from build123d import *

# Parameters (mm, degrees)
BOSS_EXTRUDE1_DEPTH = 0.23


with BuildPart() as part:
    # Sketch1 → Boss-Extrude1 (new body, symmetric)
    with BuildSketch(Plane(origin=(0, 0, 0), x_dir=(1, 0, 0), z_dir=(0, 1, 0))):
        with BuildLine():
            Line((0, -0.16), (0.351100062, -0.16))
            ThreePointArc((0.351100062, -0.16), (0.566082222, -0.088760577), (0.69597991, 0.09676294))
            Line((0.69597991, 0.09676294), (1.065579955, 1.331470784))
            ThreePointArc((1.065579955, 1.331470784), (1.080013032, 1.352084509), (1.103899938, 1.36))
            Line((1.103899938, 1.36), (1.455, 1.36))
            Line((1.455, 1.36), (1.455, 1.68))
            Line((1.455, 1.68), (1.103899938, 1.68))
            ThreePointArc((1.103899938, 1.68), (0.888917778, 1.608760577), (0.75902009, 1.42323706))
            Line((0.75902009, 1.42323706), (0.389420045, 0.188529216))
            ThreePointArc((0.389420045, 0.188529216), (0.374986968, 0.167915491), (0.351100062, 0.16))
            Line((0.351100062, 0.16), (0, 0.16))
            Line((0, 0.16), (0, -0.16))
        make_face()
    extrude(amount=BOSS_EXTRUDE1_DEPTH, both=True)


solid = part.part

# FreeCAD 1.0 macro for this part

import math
import FreeCAD as App
import Part
import Sketcher
Q = App.Units.Quantity

doc = App.newDocument("Part")
body = doc.addObject("PartDesign::Body", "Body")

sketch1 = body.newObject("Sketcher::SketchObject", "Sketch")
sketch1.AttachmentSupport = (doc.getObject("XZ_Plane"), [""])
sketch1.MapMode = "FlatFace"
sketch1.addGeometry(Part.LineSegment(App.Vector(0, 0.16, 0), App.Vector(0.351, 0.16, 0)), False)
sketch1.addGeometry(Part.ArcOfCircle(Part.Circle(App.Vector(0.351, -0.2, 0), App.Vector(0, 0, 1), 0.36), math.radians(17), math.radians(90)), False)
sketch1.addGeometry(Part.LineSegment(App.Vector(0.696, -0.097, 0), App.Vector(1.066, -1.331, 0)), False)
sketch1.addGeometry(Part.ArcOfCircle(Part.Circle(App.Vector(1.104, -1.32, 0), App.Vector(0, 0, 1), 0.04), math.radians(-163), math.radians(-90)), False)
sketch1.addGeometry(Part.LineSegment(App.Vector(1.104, -1.36, 0), App.Vector(1.455, -1.36, 0)), False)
sketch1.addGeometry(Part.LineSegment(App.Vector(1.455, -1.36, 0), App.Vector(1.455, -1.68, 0)), False)
sketch1.addGeometry(Part.LineSegment(App.Vector(1.455, -1.68, 0), App.Vector(1.104, -1.68, 0)), False)
sketch1.addGeometry(Part.ArcOfCircle(Part.Circle(App.Vector(1.104, -1.32, 0), App.Vector(0, 0, 1), 0.36), math.radians(-163), math.radians(-90)), False)
sketch1.addGeometry(Part.LineSegment(App.Vector(0.759, -1.423, 0), App.Vector(0.389, -0.189, 0)), False)
sketch1.addGeometry(Part.ArcOfCircle(Part.Circle(App.Vector(0.351, -0.2, 0), App.Vector(0, 0, 1), 0.04), math.radians(17), math.radians(90)), False)
sketch1.addGeometry(Part.LineSegment(App.Vector(0.351, -0.16, 0), App.Vector(0, -0.16, 0)), False)
sketch1.addGeometry(Part.LineSegment(App.Vector(0, -0.16, 0), App.Vector(0, 0.16, 0)), False)
sketch1.addConstraint(Sketcher.Constraint("Tangent", 0, 2, 1, 2))
sketch1.addConstraint(Sketcher.Constraint("Tangent", 1, 1, 2, 1))
sketch1.addConstraint(Sketcher.Constraint("Tangent", 2, 2, 3, 1))
sketch1.addConstraint(Sketcher.Constraint("Tangent", 3, 2, 4, 1))
sketch1.addConstraint(Sketcher.Constraint("Coincident", 4, 2, 5, 1))
sketch1.addConstraint(Sketcher.Constraint("Coincident", 5, 2, 6, 1))
sketch1.addConstraint(Sketcher.Constraint("Tangent", 6, 2, 7, 2))
sketch1.addConstraint(Sketcher.Constraint("Tangent", 7, 1, 8, 1))
sketch1.addConstraint(Sketcher.Constraint("Tangent", 8, 2, 9, 1))
sketch1.addConstraint(Sketcher.Constraint("Tangent", 9, 2, 10, 1))
sketch1.addConstraint(Sketcher.Constraint("Coincident", 10, 2, 11, 1))
sketch1.addConstraint(Sketcher.Constraint("Coincident", 11, 2, 0, 1))
sketch1.addConstraint(Sketcher.Constraint("Horizontal", 0))
sketch1.addConstraint(Sketcher.Constraint("Horizontal", 4))
sketch1.addConstraint(Sketcher.Constraint("Vertical", 5))
sketch1.addConstraint(Sketcher.Constraint("Horizontal", 6))
sketch1.addConstraint(Sketcher.Constraint("Horizontal", 10))
sketch1.addConstraint(Sketcher.Constraint("Vertical", 11))
sketch1.addConstraint(Sketcher.Constraint("Coincident", 7, 3, 3, 3))
sketch1.addConstraint(Sketcher.Constraint("Coincident", 9, 3, 1, 3))
sketch1.addConstraint(Sketcher.Constraint("Equal", 1, 7))
sketch1.addConstraint(Sketcher.Constraint("Equal", 3, 9))
sketch1.addConstraint(Sketcher.Constraint("Symmetric", 10, 2, 11, 2, -1, 1))
sketch1.addConstraint(Sketcher.Constraint("Equal", 0, 4))
sketch1.addConstraint(Sketcher.Constraint("Radius", 1, Q("0.36 mm")))
sketch1.addConstraint(Sketcher.Constraint("Radius", 3, Q("0.04 mm")))
sketch1.addConstraint(Sketcher.Constraint("DistanceY", 3, 3, -1, 1, Q("1.32 mm")))
sketch1.addConstraint(Sketcher.Constraint("DistanceX", 0, 1, 0, 2, Q("0.3511 mm")))
sketch1.addConstraint(Sketcher.Constraint("DistanceX", -1, 1, 4, 2, Q("1.455 mm")))
pad1 = body.newObject("PartDesign::Pad", "Pad")
pad1.Profile = sketch1
pad1.Length = 0.46
pad1.Midplane = True

doc.recompute()
